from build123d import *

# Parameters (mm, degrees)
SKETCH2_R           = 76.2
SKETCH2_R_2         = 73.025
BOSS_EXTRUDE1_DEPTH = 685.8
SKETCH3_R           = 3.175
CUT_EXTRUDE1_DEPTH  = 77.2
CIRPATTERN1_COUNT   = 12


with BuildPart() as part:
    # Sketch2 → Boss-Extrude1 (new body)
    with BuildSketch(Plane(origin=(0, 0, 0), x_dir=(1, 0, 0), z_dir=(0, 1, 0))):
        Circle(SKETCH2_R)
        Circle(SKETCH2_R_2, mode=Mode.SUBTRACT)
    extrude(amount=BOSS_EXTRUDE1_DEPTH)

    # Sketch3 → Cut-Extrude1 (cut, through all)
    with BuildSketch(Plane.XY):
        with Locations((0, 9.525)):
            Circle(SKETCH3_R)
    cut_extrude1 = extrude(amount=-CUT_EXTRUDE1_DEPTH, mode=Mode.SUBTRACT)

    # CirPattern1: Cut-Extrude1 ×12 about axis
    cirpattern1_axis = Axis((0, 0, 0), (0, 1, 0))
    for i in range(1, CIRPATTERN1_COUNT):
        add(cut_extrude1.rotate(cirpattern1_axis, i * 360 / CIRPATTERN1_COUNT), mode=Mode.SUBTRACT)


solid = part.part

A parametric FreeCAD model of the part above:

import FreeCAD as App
import Part
import Sketcher
Q = App.Units.Quantity

doc = App.newDocument("Part")
params = doc.addObject("Spreadsheet::Sheet", "Params")
for row, (alias, value) in enumerate([
    ("sketch1_diameter", "6 in"),
    ("sketch1_diameter2", "5.75 in"),
    ("pad1_length", "27 in"),
    ("sketch2_diameter", "0.25 in"),
], start=1):
    params.set(f"A{row}", alias)
    params.set(f"B{row}", "=" + value)
    params.setAlias(f"B{row}", alias)

body = doc.addObject("PartDesign::Body", "Body")

# Sketch on XZ plane
sketch1 = doc.addObject("Sketcher::SketchObject", "Sketch")
body.addObject(sketch1)
sketch1.AttachmentSupport = (doc.XZ_Plane, [""])
sketch1.MapMode = "FlatFace"
sketch1.addGeometry([
    Part.Circle(App.Vector(0, 0, 0), App.Vector(0, 0, 1), 76),
    Part.Circle(App.Vector(0, 0, 0), App.Vector(0, 0, 1), 73),
], False)
sketch1.addConstraint([
    Sketcher.Constraint("Coincident", 0, 3, -1, 1),
    Sketcher.Constraint("Coincident", 1, 3, -1, 1),
    Sketcher.Constraint("Diameter", 0, Q("6 in")),
    Sketcher.Constraint("Diameter", 1, Q("5.75 in")),
])
sketch1.setExpression("Constraints[2]", "Params.sketch1_diameter")
sketch1.setExpression("Constraints[3]", "Params.sketch1_diameter2")
pad1 = doc.addObject("PartDesign::Pad", "Pad")
body.addObject(pad1)
pad1.Profile = sketch1
pad1.setExpression("Length", "Params.pad1_length")
pad1.Reversed = True

# Sketch on XY plane
sketch2 = doc.addObject("Sketcher::SketchObject", "Sketch001")
body.addObject(sketch2)
sketch2.AttachmentSupport = (doc.XY_Plane, [""])
sketch2.MapMode = "FlatFace"
sketch2.addGeometry(Part.Circle(App.Vector(0, 9.5, 0), App.Vector(0, 0, 1), 3.2), False)
sketch2.addConstraint([
    Sketcher.Constraint("PointOnObject", 0, 3, -2),
    Sketcher.Constraint("Diameter", 0, Q("0.25 in")),
    Sketcher.Constraint("DistanceY", -1, 1, 0, 3, Q("0.375 in")),
])
sketch2.setExpression("Constraints[1]", "Params.sketch2_diameter")
pocket1 = doc.addObject("PartDesign::Pocket", "Pocket")
body.addObject(pocket1)
pocket1.Profile = sketch2
pocket1.Type = "ThroughAll"
doc.recompute()

polarpattern = doc.addObject("PartDesign::PolarPattern", "PolarPattern")
body.addObject(polarpattern)
polarpattern.Originals = [pocket1]
polarpattern.Axis = (doc.Y_Axis, [""])
polarpattern.Angle = 360
polarpattern.Occurrences = 12
body.Tip = polarpattern

doc.recompute()
